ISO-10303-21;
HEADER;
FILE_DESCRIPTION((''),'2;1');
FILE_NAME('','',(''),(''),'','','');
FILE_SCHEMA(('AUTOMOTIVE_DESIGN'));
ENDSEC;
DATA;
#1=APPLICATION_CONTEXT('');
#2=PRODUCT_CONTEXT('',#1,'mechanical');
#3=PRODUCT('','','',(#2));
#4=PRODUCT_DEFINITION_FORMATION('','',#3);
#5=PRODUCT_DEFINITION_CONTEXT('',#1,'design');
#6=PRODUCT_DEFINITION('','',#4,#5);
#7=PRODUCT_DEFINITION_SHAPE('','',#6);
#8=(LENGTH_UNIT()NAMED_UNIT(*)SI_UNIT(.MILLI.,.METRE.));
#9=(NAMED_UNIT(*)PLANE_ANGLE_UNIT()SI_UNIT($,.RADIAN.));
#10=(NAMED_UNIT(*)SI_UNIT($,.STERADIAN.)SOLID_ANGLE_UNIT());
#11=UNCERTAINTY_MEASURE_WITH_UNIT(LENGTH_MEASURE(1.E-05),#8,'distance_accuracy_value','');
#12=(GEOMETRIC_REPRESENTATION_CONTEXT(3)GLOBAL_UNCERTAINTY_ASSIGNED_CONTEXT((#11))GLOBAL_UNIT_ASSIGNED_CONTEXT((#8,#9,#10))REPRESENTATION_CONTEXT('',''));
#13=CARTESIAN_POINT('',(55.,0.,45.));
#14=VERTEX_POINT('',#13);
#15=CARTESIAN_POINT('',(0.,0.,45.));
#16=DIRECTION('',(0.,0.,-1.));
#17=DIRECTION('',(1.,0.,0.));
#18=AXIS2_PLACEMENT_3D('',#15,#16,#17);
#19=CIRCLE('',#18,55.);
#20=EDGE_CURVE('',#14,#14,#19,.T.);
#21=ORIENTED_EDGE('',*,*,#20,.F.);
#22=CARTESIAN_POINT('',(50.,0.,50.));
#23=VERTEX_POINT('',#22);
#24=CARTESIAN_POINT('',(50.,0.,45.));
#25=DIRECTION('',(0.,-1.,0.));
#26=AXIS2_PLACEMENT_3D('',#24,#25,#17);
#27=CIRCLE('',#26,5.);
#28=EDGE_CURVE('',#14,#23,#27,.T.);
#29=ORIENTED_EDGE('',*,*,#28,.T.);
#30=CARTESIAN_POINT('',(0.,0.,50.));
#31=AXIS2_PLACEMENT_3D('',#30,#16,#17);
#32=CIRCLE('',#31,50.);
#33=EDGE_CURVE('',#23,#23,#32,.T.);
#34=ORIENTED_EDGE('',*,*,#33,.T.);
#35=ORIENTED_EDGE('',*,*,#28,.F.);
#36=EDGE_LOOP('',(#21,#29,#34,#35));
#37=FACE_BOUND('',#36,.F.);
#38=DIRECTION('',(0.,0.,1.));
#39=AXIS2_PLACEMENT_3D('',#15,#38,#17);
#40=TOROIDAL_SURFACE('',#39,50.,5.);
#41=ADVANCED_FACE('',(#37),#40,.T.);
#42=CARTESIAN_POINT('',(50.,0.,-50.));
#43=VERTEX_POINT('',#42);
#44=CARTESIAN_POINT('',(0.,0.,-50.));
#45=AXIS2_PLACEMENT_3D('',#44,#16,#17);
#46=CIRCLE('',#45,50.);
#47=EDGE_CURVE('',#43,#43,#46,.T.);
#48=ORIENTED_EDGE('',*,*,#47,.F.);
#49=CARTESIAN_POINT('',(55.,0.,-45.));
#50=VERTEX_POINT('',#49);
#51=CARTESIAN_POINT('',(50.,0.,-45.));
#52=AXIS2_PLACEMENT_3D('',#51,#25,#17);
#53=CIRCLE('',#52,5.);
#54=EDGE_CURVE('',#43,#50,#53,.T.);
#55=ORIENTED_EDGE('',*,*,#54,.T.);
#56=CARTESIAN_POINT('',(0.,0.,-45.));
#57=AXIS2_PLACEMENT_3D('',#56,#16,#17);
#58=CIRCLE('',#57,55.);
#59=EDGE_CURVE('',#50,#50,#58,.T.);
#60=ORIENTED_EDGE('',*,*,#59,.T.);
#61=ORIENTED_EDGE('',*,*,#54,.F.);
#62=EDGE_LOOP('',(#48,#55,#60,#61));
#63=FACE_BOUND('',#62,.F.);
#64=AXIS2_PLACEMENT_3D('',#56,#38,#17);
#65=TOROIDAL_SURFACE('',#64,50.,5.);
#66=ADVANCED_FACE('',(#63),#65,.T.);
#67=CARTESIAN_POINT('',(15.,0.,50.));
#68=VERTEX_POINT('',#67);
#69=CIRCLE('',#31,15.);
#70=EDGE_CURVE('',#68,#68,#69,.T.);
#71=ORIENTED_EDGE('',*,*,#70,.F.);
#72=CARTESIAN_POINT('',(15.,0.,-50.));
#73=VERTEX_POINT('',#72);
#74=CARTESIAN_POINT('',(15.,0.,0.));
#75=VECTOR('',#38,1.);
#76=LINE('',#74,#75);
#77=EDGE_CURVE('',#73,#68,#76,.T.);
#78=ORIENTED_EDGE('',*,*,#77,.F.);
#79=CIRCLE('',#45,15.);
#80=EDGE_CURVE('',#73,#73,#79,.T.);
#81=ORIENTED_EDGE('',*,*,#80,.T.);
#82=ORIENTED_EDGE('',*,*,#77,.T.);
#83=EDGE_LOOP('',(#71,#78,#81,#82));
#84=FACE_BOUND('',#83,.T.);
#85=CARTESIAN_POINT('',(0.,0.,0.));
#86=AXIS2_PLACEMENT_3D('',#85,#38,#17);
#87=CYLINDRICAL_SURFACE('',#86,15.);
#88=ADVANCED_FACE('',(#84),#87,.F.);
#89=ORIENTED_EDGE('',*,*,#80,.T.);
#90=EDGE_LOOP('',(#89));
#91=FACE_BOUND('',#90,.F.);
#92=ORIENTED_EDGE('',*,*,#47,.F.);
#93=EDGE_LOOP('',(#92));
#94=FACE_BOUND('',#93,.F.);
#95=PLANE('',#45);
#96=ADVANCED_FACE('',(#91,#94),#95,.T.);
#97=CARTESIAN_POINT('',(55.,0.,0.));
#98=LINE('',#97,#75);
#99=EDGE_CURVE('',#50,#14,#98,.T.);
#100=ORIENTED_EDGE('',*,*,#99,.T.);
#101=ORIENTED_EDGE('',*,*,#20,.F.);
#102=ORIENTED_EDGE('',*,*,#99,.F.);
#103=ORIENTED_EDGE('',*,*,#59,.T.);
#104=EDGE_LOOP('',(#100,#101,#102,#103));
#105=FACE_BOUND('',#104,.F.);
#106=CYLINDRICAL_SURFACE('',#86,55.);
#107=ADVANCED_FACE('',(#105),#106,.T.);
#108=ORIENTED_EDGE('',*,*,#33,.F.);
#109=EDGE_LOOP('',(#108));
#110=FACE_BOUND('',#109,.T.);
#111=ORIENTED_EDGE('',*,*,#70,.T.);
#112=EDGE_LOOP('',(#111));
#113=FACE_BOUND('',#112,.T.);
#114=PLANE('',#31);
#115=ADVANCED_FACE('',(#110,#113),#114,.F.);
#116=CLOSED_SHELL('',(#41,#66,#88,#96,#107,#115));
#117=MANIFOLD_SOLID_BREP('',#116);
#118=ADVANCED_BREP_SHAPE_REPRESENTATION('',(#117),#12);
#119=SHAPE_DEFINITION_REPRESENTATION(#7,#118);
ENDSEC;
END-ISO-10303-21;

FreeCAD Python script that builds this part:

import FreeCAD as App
import Part
import Sketcher
Q = App.Units.Quantity


def edges_at(feature, points):
    """Names of the edges that pass closest to the given points."""
    edges = feature.Shape.Edges
    near = lambda p: min(range(len(edges)), key=lambda i: edges[i].distToShape(Part.Vertex(*p))[0])
    return sorted({f"Edge{near(p) + 1}" for p in points})


def add_polygon(sketch, points):
    """Adds a closed chain of lines whose ends are joined by coincident constraints."""
    first, n = sketch.GeometryCount, len(points)
    for a, b in zip(points, points[1:] + points[:1]):
        sketch.addGeometry(Part.LineSegment(App.Vector(*a, 0), App.Vector(*b, 0)), False)
    for i in range(n):
        sketch.addConstraint(Sketcher.Constraint("Coincident", first + i, 2, first + (i + 1) % n, 1))

doc = App.newDocument("Part")
params = doc.addObject("Spreadsheet::Sheet", "Params")
for row, (alias, value) in enumerate([
    ("sketch1_width", "40 mm"),
    ("sketch1_height", "100 mm"),
    ("revolution_angle", "360 deg"),
    ("fillet_radius", "5 mm"),
], start=1):
    params.set(f"A{row}", alias)
    params.set(f"B{row}", "=" + value)
    params.setAlias(f"B{row}", alias)

body = doc.addObject("PartDesign::Body", "Body")

# Sketch on XZ plane
sketch1 = doc.addObject("Sketcher::SketchObject", "Sketch")
body.addObject(sketch1)
sketch1.AttachmentSupport = (doc.XZ_Plane, [""])
sketch1.MapMode = "FlatFace"
add_polygon(sketch1, [(15, 50), (15, -50), (55, -50), (55, 50)])  # lines 0-3
sketch1.addConstraint([
    Sketcher.Constraint("Vertical", 0),
    Sketcher.Constraint("Horizontal", 1),
    Sketcher.Constraint("Vertical", 2),
    Sketcher.Constraint("Horizontal", 3),
    Sketcher.Constraint("DistanceX", 1, 1, 1, 2, Q("40 mm")),
    Sketcher.Constraint("DistanceY", 0, 2, 0, 1, Q("100 mm")),
    Sketcher.Constraint("DistanceX", -1, 1, 0, 2, Q("15 mm")),
    Sketcher.Constraint("DistanceY", 0, 2, -1, 1, Q("50 mm")),
])
sketch1.setExpression("Constraints[8]", "Params.sketch1_width")
sketch1.setExpression("Constraints[9]", "Params.sketch1_height")
revolution = doc.addObject("PartDesign::Revolution", "Revolution")
body.addObject(revolution)
revolution.Profile = sketch1
revolution.ReferenceAxis = (sketch1, ["V_Axis"])
revolution.setExpression("Angle", "Params.revolution_angle")
doc.recompute()

fillet = doc.addObject("PartDesign::Fillet", "Fillet")
body.addObject(fillet)
fillet.Base = (revolution, edges_at(revolution, [(-55, 0, 50), (-55, 0, -50)]))
fillet.setExpression("Radius", "Params.fillet_radius")

doc.recompute()
